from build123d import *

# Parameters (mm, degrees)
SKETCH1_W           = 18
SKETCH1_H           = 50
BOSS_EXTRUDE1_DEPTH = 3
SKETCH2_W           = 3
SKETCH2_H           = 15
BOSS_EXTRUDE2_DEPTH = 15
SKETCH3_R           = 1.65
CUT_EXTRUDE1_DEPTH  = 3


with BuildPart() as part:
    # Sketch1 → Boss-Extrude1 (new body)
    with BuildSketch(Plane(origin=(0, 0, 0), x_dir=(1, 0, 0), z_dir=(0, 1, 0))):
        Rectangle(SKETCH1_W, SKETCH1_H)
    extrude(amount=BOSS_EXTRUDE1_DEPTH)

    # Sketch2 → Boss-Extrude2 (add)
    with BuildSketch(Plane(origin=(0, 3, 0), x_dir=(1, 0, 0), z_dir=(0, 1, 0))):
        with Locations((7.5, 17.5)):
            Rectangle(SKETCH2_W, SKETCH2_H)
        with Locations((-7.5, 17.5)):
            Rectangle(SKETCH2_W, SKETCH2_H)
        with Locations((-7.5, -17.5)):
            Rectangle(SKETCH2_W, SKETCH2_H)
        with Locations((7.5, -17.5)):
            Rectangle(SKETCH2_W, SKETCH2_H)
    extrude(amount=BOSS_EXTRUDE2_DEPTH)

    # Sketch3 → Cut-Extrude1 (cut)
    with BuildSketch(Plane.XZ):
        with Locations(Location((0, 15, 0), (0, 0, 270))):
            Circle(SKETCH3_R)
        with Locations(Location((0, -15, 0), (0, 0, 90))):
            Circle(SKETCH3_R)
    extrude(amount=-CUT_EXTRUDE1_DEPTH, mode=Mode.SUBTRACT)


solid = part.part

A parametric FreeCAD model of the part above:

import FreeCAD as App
import Part
import Sketcher
from FreeCAD import Vector

doc = App.newDocument("Part")
body = doc.addObject("PartDesign::Body", "Body")

# Sketch on XZ plane
sketch1 = doc.addObject("Sketcher::SketchObject", "Sketch")
body.addObject(sketch1)
sketch1.AttachmentSupport = (doc.XZ_Plane, [""])
sketch1.MapMode = "FlatFace"
sketch1.addGeometry([
    Part.LineSegment(Vector(-9, -25, 0), Vector(-9, 25, 0)),
    Part.LineSegment(Vector(-9, 25, 0), Vector(9, 25, 0)),
    Part.LineSegment(Vector(9, 25, 0), Vector(9, -25, 0)),
    Part.LineSegment(Vector(9, -25, 0), Vector(-9, -25, 0)),
], False)
sketch1.addConstraint([
    Sketcher.Constraint("Coincident", 0, 2, 1, 1),
    Sketcher.Constraint("Coincident", 1, 2, 2, 1),
    Sketcher.Constraint("Coincident", 2, 2, 3, 1),
    Sketcher.Constraint("Coincident", 3, 2, 0, 1),
    Sketcher.Constraint("Vertical", 0),
    Sketcher.Constraint("Horizontal", 1),
    Sketcher.Constraint("Vertical", 2),
    Sketcher.Constraint("Horizontal", 3),
    Sketcher.Constraint("Symmetric", 0, 2, 2, 2, -1, 1),
    Sketcher.Constraint("DistanceX", 1, 1, 1, 2, 18.0),
    Sketcher.Constraint("DistanceY", 0, 1, 0, 2, 50.0),
])
pad1 = doc.addObject("PartDesign::Pad", "Pad")
body.addObject(pad1)
pad1.Profile = sketch1
pad1.Length = 3
pad1.Reversed = True

# Sketch on XZ plane
sketch2 = doc.addObject("Sketcher::SketchObject", "Sketch001")
body.addObject(sketch2)
sketch2.AttachmentSupport = (doc.XZ_Plane, [""])
sketch2.MapMode = "FlatFace"
sketch2.AttachmentOffset = App.Placement(Vector(0, 0, -3), App.Rotation())
sketch2.addGeometry([
    Part.LineSegment(Vector(6, -25, 0), Vector(6, -10, 0)),  # 0
    Part.LineSegment(Vector(6, -10, 0), Vector(9, -10, 0)),  # 1
    Part.LineSegment(Vector(9, -10, 0), Vector(9, -25, 0)),  # 2
    Part.LineSegment(Vector(9, -25, 0), Vector(6, -25, 0)),  # 3
    Part.LineSegment(Vector(-9, -25, 0), Vector(-9, -10, 0)),  # 4
    Part.LineSegment(Vector(-9, -10, 0), Vector(-6, -10, 0)),  # 5
    Part.LineSegment(Vector(-6, -10, 0), Vector(-6, -25, 0)),  # 6
    Part.LineSegment(Vector(-6, -25, 0), Vector(-9, -25, 0)),  # 7
    Part.LineSegment(Vector(-9, 10, 0), Vector(-9, 25, 0)),  # 8
    Part.LineSegment(Vector(-9, 25, 0), Vector(-6, 25, 0)),  # 9
    Part.LineSegment(Vector(-6, 25, 0), Vector(-6, 10, 0)),  # 10
    Part.LineSegment(Vector(-6, 10, 0), Vector(-9, 10, 0)),  # 11
    Part.LineSegment(Vector(6, 10, 0), Vector(6, 25, 0)),  # 12
    Part.LineSegment(Vector(6, 25, 0), Vector(9, 25, 0)),  # 13
    Part.LineSegment(Vector(9, 25, 0), Vector(9, 10, 0)),  # 14
    Part.LineSegment(Vector(9, 10, 0), Vector(6, 10, 0)),  # 15
], False)
sketch2.addConstraint([
    Sketcher.Constraint("Coincident", 0, 2, 1, 1),
    Sketcher.Constraint("Coincident", 1, 2, 2, 1),
    Sketcher.Constraint("Coincident", 2, 2, 3, 1),
    Sketcher.Constraint("Coincident", 3, 2, 0, 1),
    Sketcher.Constraint("Coincident", 4, 2, 5, 1),
    Sketcher.Constraint("Coincident", 5, 2, 6, 1),
    Sketcher.Constraint("Coincident", 6, 2, 7, 1),
    Sketcher.Constraint("Coincident", 7, 2, 4, 1),
    Sketcher.Constraint("Coincident", 8, 2, 9, 1),
    Sketcher.Constraint("Coincident", 9, 2, 10, 1),
    Sketcher.Constraint("Coincident", 10, 2, 11, 1),
    Sketcher.Constraint("Coincident", 11, 2, 8, 1),
    Sketcher.Constraint("Coincident", 12, 2, 13, 1),
    Sketcher.Constraint("Coincident", 13, 2, 14, 1),
    Sketcher.Constraint("Coincident", 14, 2, 15, 1),
    Sketcher.Constraint("Coincident", 15, 2, 12, 1),
    Sketcher.Constraint("Vertical", 0),
    Sketcher.Constraint("Horizontal", 1),
    Sketcher.Constraint("Vertical", 2),
    Sketcher.Constraint("Horizontal", 3),
    Sketcher.Constraint("Vertical", 4),
    Sketcher.Constraint("Horizontal", 5),
    Sketcher.Constraint("Vertical", 6),
    Sketcher.Constraint("Horizontal", 7),
    Sketcher.Constraint("Vertical", 8),
    Sketcher.Constraint("Horizontal", 9),
    Sketcher.Constraint("Vertical", 10),
    Sketcher.Constraint("Horizontal", 11),
    Sketcher.Constraint("Vertical", 12),
    Sketcher.Constraint("Horizontal", 13),
    Sketcher.Constraint("Vertical", 14),
    Sketcher.Constraint("Horizontal", 15),
    Sketcher.Constraint("Symmetric", 2, 2, 8, 2, -1, 1),
    Sketcher.Constraint("Symmetric", 0, 2, 10, 2, -1, 1),
    Sketcher.Constraint("Symmetric", 6, 2, 12, 2, -1, 1),
    Sketcher.Constraint("Symmetric", 4, 2, 14, 2, -1, 1),
    Sketcher.Constraint("Symmetric", 1, 2, 4, 2, -2),
    Sketcher.Constraint("Symmetric", 3, 2, 6, 2, -2),
    Sketcher.Constraint("DistanceX", 1, 1, 1, 2, 3.0),
    Sketcher.Constraint("DistanceY", 0, 1, 0, 2, 15.0),
    Sketcher.Constraint("DistanceX", -1, 1, 0, 2, 6.0),
    Sketcher.Constraint("DistanceY", 0, 2, -1, 1, 10.0),
])
pad2 = doc.addObject("PartDesign::Pad", "Pad001")
body.addObject(pad2)
pad2.Profile = sketch2
pad2.Length = 15
pad2.Reversed = True

# Sketch on XZ plane
sketch3 = doc.addObject("Sketcher::SketchObject", "Sketch002")
body.addObject(sketch3)
sketch3.AttachmentSupport = (doc.XZ_Plane, [""])
sketch3.MapMode = "FlatFace"
sketch3.addGeometry([
    Part.Circle(Vector(0, 15, 0), Vector(0, 0, 1), 1.6),
    Part.Circle(Vector(0, -15, 0), Vector(0, 0, 1), 1.6),
], False)
sketch3.addConstraint([
    Sketcher.Constraint("Equal", 0, 1),
    Sketcher.Constraint("Symmetric", 0, 3, 1, 3, -1, 1),
    Sketcher.Constraint("PointOnObject", 0, 3, -2),
    Sketcher.Constraint("Diameter", 0, 3.3),
    Sketcher.Constraint("DistanceY", -1, 1, 0, 3, 15.0),
])
pocket1 = doc.addObject("PartDesign::Pocket", "Pocket")
body.addObject(pocket1)
pocket1.Profile = sketch3
pocket1.Length = 3

doc.recompute()
